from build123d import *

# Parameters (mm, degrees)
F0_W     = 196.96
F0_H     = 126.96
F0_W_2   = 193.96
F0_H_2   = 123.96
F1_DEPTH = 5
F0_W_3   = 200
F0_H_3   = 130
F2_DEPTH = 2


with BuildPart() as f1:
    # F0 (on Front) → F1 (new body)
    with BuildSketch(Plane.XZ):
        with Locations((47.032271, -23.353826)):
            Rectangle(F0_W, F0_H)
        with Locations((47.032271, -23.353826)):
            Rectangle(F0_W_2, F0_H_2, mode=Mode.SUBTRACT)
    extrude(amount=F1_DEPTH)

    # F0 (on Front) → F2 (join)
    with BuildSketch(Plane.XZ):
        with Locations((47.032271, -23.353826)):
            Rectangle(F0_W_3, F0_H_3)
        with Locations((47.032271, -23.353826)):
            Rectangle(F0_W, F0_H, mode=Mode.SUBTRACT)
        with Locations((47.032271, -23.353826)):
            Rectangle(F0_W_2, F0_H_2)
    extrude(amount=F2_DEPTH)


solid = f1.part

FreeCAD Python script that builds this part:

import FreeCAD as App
import Part
import Sketcher
Q = App.Units.Quantity

doc = App.newDocument("Part")
body = doc.addObject("PartDesign::Body", "Body")

sketch1 = doc.addObject("Sketcher::SketchObject", "Sketch")
body.addObject(sketch1)
sketch1.AttachmentSupport = (doc.XZ_Plane, [""])
sketch1.MapMode = "FlatFace"
sketch1.addGeometry(Part.LineSegment(App.Vector(-51, 40, 0), App.Vector(-51, -87, 0)), False)
sketch1.addGeometry(Part.LineSegment(App.Vector(-51, -87, 0), App.Vector(146, -87, 0)), False)
sketch1.addGeometry(Part.LineSegment(App.Vector(146, -87, 0), App.Vector(146, 40, 0)), False)
sketch1.addGeometry(Part.LineSegment(App.Vector(146, 40, 0), App.Vector(-51, 40, 0)), False)
sketch1.addGeometry(Part.LineSegment(App.Vector(144, -85, 0), App.Vector(-50, -85, 0)), False)
sketch1.addGeometry(Part.LineSegment(App.Vector(-50, -85, 0), App.Vector(-50, 39, 0)), False)
sketch1.addGeometry(Part.LineSegment(App.Vector(-50, 39, 0), App.Vector(144, 39, 0)), False)
sketch1.addGeometry(Part.LineSegment(App.Vector(144, 39, 0), App.Vector(144, -85, 0)), False)
sketch1.addConstraint(Sketcher.Constraint("Coincident", 0, 2, 1, 1))
sketch1.addConstraint(Sketcher.Constraint("Coincident", 1, 2, 2, 1))
sketch1.addConstraint(Sketcher.Constraint("Coincident", 2, 2, 3, 1))
sketch1.addConstraint(Sketcher.Constraint("Coincident", 3, 2, 0, 1))
sketch1.addConstraint(Sketcher.Constraint("Coincident", 4, 2, 5, 1))
sketch1.addConstraint(Sketcher.Constraint("Coincident", 5, 2, 6, 1))
sketch1.addConstraint(Sketcher.Constraint("Coincident", 6, 2, 7, 1))
sketch1.addConstraint(Sketcher.Constraint("Coincident", 7, 2, 4, 1))
sketch1.addConstraint(Sketcher.Constraint("Vertical", 0))
sketch1.addConstraint(Sketcher.Constraint("Horizontal", 1))
sketch1.addConstraint(Sketcher.Constraint("Vertical", 2))
sketch1.addConstraint(Sketcher.Constraint("Horizontal", 3))
sketch1.addConstraint(Sketcher.Constraint("Horizontal", 4))
sketch1.addConstraint(Sketcher.Constraint("Vertical", 5))
sketch1.addConstraint(Sketcher.Constraint("Horizontal", 6))
sketch1.addConstraint(Sketcher.Constraint("Vertical", 7))
sketch1.addConstraint(Sketcher.Constraint("DistanceX", 1, 1, 1, 2, Q("196.96 mm")))
sketch1.addConstraint(Sketcher.Constraint("DistanceX", 4, 2, 4, 1, Q("193.96 mm")))
sketch1.addConstraint(Sketcher.Constraint("DistanceY", 0, 2, 0, 1, Q("126.96 mm")))
sketch1.addConstraint(Sketcher.Constraint("DistanceY", 5, 1, 5, 2, Q("123.96 mm")))
sketch1.addConstraint(Sketcher.Constraint("DistanceX", 0, 2, 4, 2, Q("1.5 mm")))
sketch1.addConstraint(Sketcher.Constraint("DistanceY", 0, 2, 4, 2, Q("1.5 mm")))
sketch1.addConstraint(Sketcher.Constraint("DistanceX", 0, 2, -1, 1, Q("51.447729 mm")))
sketch1.addConstraint(Sketcher.Constraint("DistanceY", 0, 2, -1, 1, Q("86.833826 mm")))
pad1 = doc.addObject("PartDesign::Pad", "Pad")
body.addObject(pad1)
pad1.Profile = sketch1
pad1.Length = 5

sketch2 = doc.addObject("Sketcher::SketchObject", "Sketch001")
body.addObject(sketch2)
sketch2.AttachmentSupport = (doc.XZ_Plane, [""])
sketch2.MapMode = "FlatFace"
sketch2.addGeometry(Part.LineSegment(App.Vector(-53, 42, 0), App.Vector(-53, -88, 0)), False)
sketch2.addGeometry(Part.LineSegment(App.Vector(-53, -88, 0), App.Vector(147, -88, 0)), False)
sketch2.addGeometry(Part.LineSegment(App.Vector(147, -88, 0), App.Vector(147, 42, 0)), False)
sketch2.addGeometry(Part.LineSegment(App.Vector(147, 42, 0), App.Vector(-53, 42, 0)), False)
sketch2.addGeometry(Part.LineSegment(App.Vector(146, -87, 0), App.Vector(-51, -87, 0)), False)
sketch2.addGeometry(Part.LineSegment(App.Vector(-51, -87, 0), App.Vector(-51, 40, 0)), False)
sketch2.addGeometry(Part.LineSegment(App.Vector(-51, 40, 0), App.Vector(146, 40, 0)), False)
sketch2.addGeometry(Part.LineSegment(App.Vector(146, 40, 0), App.Vector(146, -87, 0)), False)
sketch2.addGeometry(Part.LineSegment(App.Vector(-50, 39, 0), App.Vector(-50, -85, 0)), False)
sketch2.addGeometry(Part.LineSegment(App.Vector(-50, -85, 0), App.Vector(144, -85, 0)), False)
sketch2.addGeometry(Part.LineSegment(App.Vector(144, -85, 0), App.Vector(144, 39, 0)), False)
sketch2.addGeometry(Part.LineSegment(App.Vector(144, 39, 0), App.Vector(-50, 39, 0)), False)
sketch2.addConstraint(Sketcher.Constraint("Coincident", 0, 2, 1, 1))
sketch2.addConstraint(Sketcher.Constraint("Coincident", 1, 2, 2, 1))
sketch2.addConstraint(Sketcher.Constraint("Coincident", 2, 2, 3, 1))
sketch2.addConstraint(Sketcher.Constraint("Coincident", 3, 2, 0, 1))
sketch2.addConstraint(Sketcher.Constraint("Coincident", 4, 2, 5, 1))
sketch2.addConstraint(Sketcher.Constraint("Coincident", 5, 2, 6, 1))
sketch2.addConstraint(Sketcher.Constraint("Coincident", 6, 2, 7, 1))
sketch2.addConstraint(Sketcher.Constraint("Coincident", 7, 2, 4, 1))
sketch2.addConstraint(Sketcher.Constraint("Coincident", 8, 2, 9, 1))
sketch2.addConstraint(Sketcher.Constraint("Coincident", 9, 2, 10, 1))
sketch2.addConstraint(Sketcher.Constraint("Coincident", 10, 2, 11, 1))
sketch2.addConstraint(Sketcher.Constraint("Coincident", 11, 2, 8, 1))
sketch2.addConstraint(Sketcher.Constraint("Vertical", 0))
sketch2.addConstraint(Sketcher.Constraint("Horizontal", 1))
sketch2.addConstraint(Sketcher.Constraint("Vertical", 2))
sketch2.addConstraint(Sketcher.Constraint("Horizontal", 3))
sketch2.addConstraint(Sketcher.Constraint("Horizontal", 4))
sketch2.addConstraint(Sketcher.Constraint("Vertical", 5))
sketch2.addConstraint(Sketcher.Constraint("Horizontal", 6))
sketch2.addConstraint(Sketcher.Constraint("Vertical", 7))
sketch2.addConstraint(Sketcher.Constraint("Vertical", 8))
sketch2.addConstraint(Sketcher.Constraint("Horizontal", 9))
sketch2.addConstraint(Sketcher.Constraint("Vertical", 10))
sketch2.addConstraint(Sketcher.Constraint("Horizontal", 11))
sketch2.addConstraint(Sketcher.Constraint("DistanceX", 1, 1, 1, 2, Q("200 mm")))
sketch2.addConstraint(Sketcher.Constraint("DistanceY", 0, 2, 0, 1, Q("130 mm")))
sketch2.addConstraint(Sketcher.Constraint("DistanceX", 4, 2, 4, 1, Q("196.96 mm")))
sketch2.addConstraint(Sketcher.Constraint("DistanceX", 9, 1, 9, 2, Q("193.96 mm")))
sketch2.addConstraint(Sketcher.Constraint("DistanceY", 5, 1, 5, 2, Q("126.96 mm")))
sketch2.addConstraint(Sketcher.Constraint("DistanceY", 8, 2, 8, 1, Q("123.96 mm")))
sketch2.addConstraint(Sketcher.Constraint("DistanceX", 4, 2, 8, 2, Q("1.5 mm")))
sketch2.addConstraint(Sketcher.Constraint("DistanceY", 4, 2, 8, 2, Q("1.5 mm")))
sketch2.addConstraint(Sketcher.Constraint("DistanceX", 0, 2, 4, 2, Q("1.52 mm")))
sketch2.addConstraint(Sketcher.Constraint("DistanceY", 0, 2, 4, 2, Q("1.52 mm")))
sketch2.addConstraint(Sketcher.Constraint("DistanceX", 0, 2, -1, 1, Q("52.967729 mm")))
sketch2.addConstraint(Sketcher.Constraint("DistanceY", 0, 2, -1, 1, Q("88.353826 mm")))
pad2 = doc.addObject("PartDesign::Pad", "Pad001")
body.addObject(pad2)
pad2.Profile = sketch2
pad2.Length = 2

doc.recompute()
